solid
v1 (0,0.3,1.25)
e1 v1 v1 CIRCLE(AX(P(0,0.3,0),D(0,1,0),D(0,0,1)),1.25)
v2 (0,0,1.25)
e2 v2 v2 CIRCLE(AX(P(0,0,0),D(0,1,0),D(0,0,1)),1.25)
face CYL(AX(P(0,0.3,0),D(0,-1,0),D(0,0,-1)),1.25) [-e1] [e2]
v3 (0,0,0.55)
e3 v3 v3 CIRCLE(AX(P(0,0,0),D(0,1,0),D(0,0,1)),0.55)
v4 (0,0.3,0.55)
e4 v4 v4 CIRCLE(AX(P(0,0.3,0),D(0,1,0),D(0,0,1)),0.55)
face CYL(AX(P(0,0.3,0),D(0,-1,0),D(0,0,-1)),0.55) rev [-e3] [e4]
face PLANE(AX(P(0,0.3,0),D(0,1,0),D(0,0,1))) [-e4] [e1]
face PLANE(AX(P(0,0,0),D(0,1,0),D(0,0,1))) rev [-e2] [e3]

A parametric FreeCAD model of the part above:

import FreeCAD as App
import Part
import Sketcher
Q = App.Units.Quantity

doc = App.newDocument("Part")
body = doc.addObject("PartDesign::Body", "Body")

# Sketch on XZ plane
sketch1 = doc.addObject("Sketcher::SketchObject", "Sketch")
body.addObject(sketch1)
sketch1.AttachmentSupport = (doc.XZ_Plane, [""])
sketch1.MapMode = "FlatFace"
sketch1.addGeometry(Part.Circle(App.Vector(0, 0, 0), App.Vector(0, 0, 1), 1.2), False)
sketch1.addGeometry(Part.Circle(App.Vector(0, 0, 0), App.Vector(0, 0, 1), 0.6), False)
sketch1.addConstraint(Sketcher.Constraint("Coincident", 0, 3, -1, 1))
sketch1.addConstraint(Sketcher.Constraint("Coincident", 1, 3, -1, 1))
sketch1.addConstraint(Sketcher.Constraint("Diameter", 0, Q("2.5 mm")))
sketch1.addConstraint(Sketcher.Constraint("Diameter", 1, Q("1.1 mm")))
pad1 = doc.addObject("PartDesign::Pad", "Pad")
body.addObject(pad1)
pad1.Profile = sketch1
pad1.Length = 0.3
pad1.Reversed = True

doc.recompute()
